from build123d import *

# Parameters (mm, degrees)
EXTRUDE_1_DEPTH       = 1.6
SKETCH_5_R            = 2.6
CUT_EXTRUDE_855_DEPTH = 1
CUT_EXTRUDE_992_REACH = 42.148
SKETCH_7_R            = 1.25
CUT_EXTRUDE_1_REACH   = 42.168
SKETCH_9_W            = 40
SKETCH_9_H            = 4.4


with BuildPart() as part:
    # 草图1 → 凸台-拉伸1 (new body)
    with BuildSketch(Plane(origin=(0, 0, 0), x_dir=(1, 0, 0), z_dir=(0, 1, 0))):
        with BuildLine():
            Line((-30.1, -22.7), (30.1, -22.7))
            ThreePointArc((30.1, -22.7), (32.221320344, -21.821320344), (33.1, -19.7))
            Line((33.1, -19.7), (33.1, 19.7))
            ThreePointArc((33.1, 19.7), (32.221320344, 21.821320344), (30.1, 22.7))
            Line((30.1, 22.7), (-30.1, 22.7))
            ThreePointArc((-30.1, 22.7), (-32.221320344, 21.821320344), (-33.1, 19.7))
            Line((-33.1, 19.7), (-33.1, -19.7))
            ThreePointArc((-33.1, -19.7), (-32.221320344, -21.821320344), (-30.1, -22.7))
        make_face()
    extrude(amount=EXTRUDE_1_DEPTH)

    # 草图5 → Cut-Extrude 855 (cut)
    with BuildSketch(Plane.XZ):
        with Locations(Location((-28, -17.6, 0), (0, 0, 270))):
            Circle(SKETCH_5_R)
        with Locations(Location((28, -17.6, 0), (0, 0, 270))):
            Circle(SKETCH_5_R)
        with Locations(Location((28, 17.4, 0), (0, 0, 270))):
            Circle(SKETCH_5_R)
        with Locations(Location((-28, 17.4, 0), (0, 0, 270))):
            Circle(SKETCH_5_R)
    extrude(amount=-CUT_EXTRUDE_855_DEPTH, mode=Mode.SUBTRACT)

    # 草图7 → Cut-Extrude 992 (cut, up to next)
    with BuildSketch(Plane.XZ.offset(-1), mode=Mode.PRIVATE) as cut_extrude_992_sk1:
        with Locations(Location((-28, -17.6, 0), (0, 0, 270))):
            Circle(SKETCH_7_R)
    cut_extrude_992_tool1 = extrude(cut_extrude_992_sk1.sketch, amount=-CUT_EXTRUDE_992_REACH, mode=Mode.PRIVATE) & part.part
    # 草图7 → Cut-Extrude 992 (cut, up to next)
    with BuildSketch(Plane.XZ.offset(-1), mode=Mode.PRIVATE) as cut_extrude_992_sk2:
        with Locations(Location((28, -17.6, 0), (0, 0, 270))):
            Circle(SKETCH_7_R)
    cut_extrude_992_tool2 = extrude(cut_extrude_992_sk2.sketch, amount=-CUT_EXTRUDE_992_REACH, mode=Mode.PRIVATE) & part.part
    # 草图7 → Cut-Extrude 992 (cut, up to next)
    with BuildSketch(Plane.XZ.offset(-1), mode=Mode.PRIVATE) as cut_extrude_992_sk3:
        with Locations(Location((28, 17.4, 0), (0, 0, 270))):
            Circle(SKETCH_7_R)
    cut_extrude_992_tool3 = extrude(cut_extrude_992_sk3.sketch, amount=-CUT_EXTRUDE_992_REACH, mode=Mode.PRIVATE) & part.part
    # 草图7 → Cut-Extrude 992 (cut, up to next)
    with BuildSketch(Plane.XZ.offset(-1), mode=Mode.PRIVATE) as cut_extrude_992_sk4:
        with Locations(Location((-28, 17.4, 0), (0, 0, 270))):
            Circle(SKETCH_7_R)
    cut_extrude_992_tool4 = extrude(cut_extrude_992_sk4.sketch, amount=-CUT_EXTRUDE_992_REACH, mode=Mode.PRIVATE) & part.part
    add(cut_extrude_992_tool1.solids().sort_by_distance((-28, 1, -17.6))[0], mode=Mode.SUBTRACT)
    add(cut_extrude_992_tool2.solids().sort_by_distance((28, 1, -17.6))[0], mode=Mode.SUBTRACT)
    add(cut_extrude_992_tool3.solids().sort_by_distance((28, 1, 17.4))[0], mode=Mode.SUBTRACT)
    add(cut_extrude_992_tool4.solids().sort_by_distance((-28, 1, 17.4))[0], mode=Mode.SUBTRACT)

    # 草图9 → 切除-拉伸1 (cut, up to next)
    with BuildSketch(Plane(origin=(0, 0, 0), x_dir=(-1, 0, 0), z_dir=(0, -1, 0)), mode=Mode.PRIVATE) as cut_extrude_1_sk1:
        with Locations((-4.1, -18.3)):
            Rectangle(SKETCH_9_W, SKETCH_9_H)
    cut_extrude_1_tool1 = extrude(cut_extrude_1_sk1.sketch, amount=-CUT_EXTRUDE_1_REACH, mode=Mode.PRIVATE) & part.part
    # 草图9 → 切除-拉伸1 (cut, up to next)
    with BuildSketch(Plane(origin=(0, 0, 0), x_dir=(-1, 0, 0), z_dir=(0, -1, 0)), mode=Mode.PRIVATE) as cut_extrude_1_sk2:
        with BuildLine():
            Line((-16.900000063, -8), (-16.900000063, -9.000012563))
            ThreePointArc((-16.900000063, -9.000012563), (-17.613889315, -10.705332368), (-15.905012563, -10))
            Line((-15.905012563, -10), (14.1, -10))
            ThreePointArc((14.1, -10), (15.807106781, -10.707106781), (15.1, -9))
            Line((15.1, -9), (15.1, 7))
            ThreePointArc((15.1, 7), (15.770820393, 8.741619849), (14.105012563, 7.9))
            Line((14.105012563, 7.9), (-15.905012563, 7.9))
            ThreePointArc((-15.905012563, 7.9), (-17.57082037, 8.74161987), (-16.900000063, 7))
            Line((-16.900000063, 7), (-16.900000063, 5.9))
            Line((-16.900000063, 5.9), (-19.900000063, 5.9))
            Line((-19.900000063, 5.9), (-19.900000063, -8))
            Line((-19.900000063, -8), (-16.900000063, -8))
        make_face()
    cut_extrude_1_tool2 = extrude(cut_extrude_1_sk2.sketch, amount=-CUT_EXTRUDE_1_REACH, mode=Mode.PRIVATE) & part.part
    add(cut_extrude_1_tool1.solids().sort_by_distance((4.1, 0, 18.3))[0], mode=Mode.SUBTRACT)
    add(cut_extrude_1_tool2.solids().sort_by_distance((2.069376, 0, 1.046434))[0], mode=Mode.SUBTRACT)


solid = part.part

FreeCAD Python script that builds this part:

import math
import FreeCAD as App
import Part
import Sketcher

doc = App.newDocument("Part")
body = doc.addObject("PartDesign::Body", "Body")

sketch1 = body.newObject("Sketcher::SketchObject", "Sketch")
sketch1.AttachmentSupport = (doc.getObject("XZ_Plane"), [""])
sketch1.MapMode = "FlatFace"
sketch1.addGeometry([
    Part.LineSegment(App.Vector(-30.1, 22.7, 0), App.Vector(30.1, 22.7, 0)),
    Part.ArcOfCircle(Part.Circle(App.Vector(30.1, 19.7, 0), App.Vector(0, 0, 1), 3), math.radians(0), math.radians(90)),
    Part.LineSegment(App.Vector(33.1, 19.7, 0), App.Vector(33.1, -19.7, 0)),
    Part.ArcOfCircle(Part.Circle(App.Vector(30.1, -19.7, 0), App.Vector(0, 0, 1), 3), math.radians(-90), math.radians(0)),
    Part.LineSegment(App.Vector(30.1, -22.7, 0), App.Vector(-30.1, -22.7, 0)),
    Part.ArcOfCircle(Part.Circle(App.Vector(-30.1, -19.7, 0), App.Vector(0, 0, 1), 3), math.radians(180), math.radians(270)),
    Part.LineSegment(App.Vector(-33.1, -19.7, 0), App.Vector(-33.1, 19.7, 0)),
    Part.ArcOfCircle(Part.Circle(App.Vector(-30.1, 19.7, 0), App.Vector(0, 0, 1), 3), math.radians(90), math.radians(180)),
], False)
sketch1.addConstraint([
    Sketcher.Constraint("Tangent", 0, 2, 1, 2),
    Sketcher.Constraint("Tangent", 1, 1, 2, 1),
    Sketcher.Constraint("Tangent", 2, 2, 3, 2),
    Sketcher.Constraint("Tangent", 3, 1, 4, 1),
    Sketcher.Constraint("Tangent", 4, 2, 5, 2),
    Sketcher.Constraint("Tangent", 5, 1, 6, 1),
    Sketcher.Constraint("Tangent", 6, 2, 7, 2),
    Sketcher.Constraint("Tangent", 7, 1, 0, 1),
    Sketcher.Constraint("Horizontal", 0),
    Sketcher.Constraint("Vertical", 2),
    Sketcher.Constraint("Horizontal", 4),
    Sketcher.Constraint("Vertical", 6),
    Sketcher.Constraint("Equal", 1, 3),
    Sketcher.Constraint("Equal", 3, 5),
    Sketcher.Constraint("Equal", 5, 7),
    Sketcher.Constraint("Symmetric", 1, 3, 5, 3, -1, 1),
    Sketcher.Constraint("Radius", 1, 3.0),
    Sketcher.Constraint("DistanceX", 0, 1, 0, 2, 60.2),
    Sketcher.Constraint("DistanceY", 2, 2, 2, 1, 39.4),
])
pad1 = body.newObject("PartDesign::Pad", "Pad")
pad1.Profile = sketch1
pad1.Length = 1.6
pad1.Reversed = True

sketch2 = body.newObject("Sketcher::SketchObject", "Sketch001")
sketch2.AttachmentSupport = (doc.getObject("XZ_Plane"), [""])
sketch2.MapMode = "FlatFace"
sketch2.addGeometry([
    Part.Circle(App.Vector(-28, -17.6, 0), App.Vector(0, 0, 1), 2.6),
    Part.Circle(App.Vector(28, -17.6, 0), App.Vector(0, 0, 1), 2.6),
    Part.Circle(App.Vector(28, 17.4, 0), App.Vector(0, 0, 1), 2.6),
    Part.Circle(App.Vector(-28, 17.4, 0), App.Vector(0, 0, 1), 2.6),
], False)
sketch2.addConstraint([
    Sketcher.Constraint("Equal", 0, 1),
    Sketcher.Constraint("Equal", 1, 2),
    Sketcher.Constraint("Equal", 2, 3),
    Sketcher.Constraint("Symmetric", 0, 3, 1, 3, -2),
    Sketcher.Constraint("Symmetric", 2, 3, 3, 3, -2),
    Sketcher.Constraint("Vertical", 1, 3, 2, 3),
    Sketcher.Constraint("Diameter", 0, 5.2),
    Sketcher.Constraint("DistanceX", 0, 3, -1, 1, 28.0),
    Sketcher.Constraint("DistanceY", 1, 3, 2, 3, 35.0),
    Sketcher.Constraint("DistanceY", 0, 3, -1, 1, 17.6),
])
pocket1 = body.newObject("PartDesign::Pocket", "Pocket")
pocket1.Profile = sketch2
pocket1.Length = 1

sketch3 = body.newObject("Sketcher::SketchObject", "Sketch002")
sketch3.AttachmentSupport = (doc.getObject("XZ_Plane"), [""])
sketch3.MapMode = "FlatFace"
sketch3.AttachmentOffset = App.Placement(App.Vector(0, 0, -1), App.Rotation())
sketch3.addGeometry(Part.Circle(App.Vector(-28, -17.6, 0), App.Vector(0, 0, 1), 1.2), False)
sketch3.addConstraint([
    Sketcher.Constraint("Diameter", 0, 2.5),
    Sketcher.Constraint("DistanceX", 0, 3, -1, 1, 28.0),
    Sketcher.Constraint("DistanceY", 0, 3, -1, 1, 17.6),
])
pocket2 = body.newObject("PartDesign::Pocket", "Pocket001")
pocket2.Profile = sketch3
pocket2.Type = "UpToFirst"

sketch4 = body.newObject("Sketcher::SketchObject", "Sketch003")
sketch4.AttachmentSupport = (doc.getObject("XZ_Plane"), [""])
sketch4.MapMode = "FlatFace"
sketch4.AttachmentOffset = App.Placement(App.Vector(0, 0, -1), App.Rotation())
sketch4.addGeometry(Part.Circle(App.Vector(28, -17.6, 0), App.Vector(0, 0, 1), 1.2), False)
sketch4.addConstraint([
    Sketcher.Constraint("Diameter", 0, 2.5),
    Sketcher.Constraint("DistanceX", -1, 1, 0, 3, 28.0),
    Sketcher.Constraint("DistanceY", 0, 3, -1, 1, 17.6),
])
pocket3 = body.newObject("PartDesign::Pocket", "Pocket002")
pocket3.Profile = sketch4
pocket3.Type = "UpToFirst"

sketch5 = body.newObject("Sketcher::SketchObject", "Sketch004")
sketch5.AttachmentSupport = (doc.getObject("XZ_Plane"), [""])
sketch5.MapMode = "FlatFace"
sketch5.AttachmentOffset = App.Placement(App.Vector(0, 0, -1), App.Rotation())
sketch5.addGeometry(Part.Circle(App.Vector(28, 17.4, 0), App.Vector(0, 0, 1), 1.2), False)
sketch5.addConstraint([
    Sketcher.Constraint("Diameter", 0, 2.5),
    Sketcher.Constraint("DistanceX", -1, 1, 0, 3, 28.0),
    Sketcher.Constraint("DistanceY", -1, 1, 0, 3, 17.4),
])
pocket4 = body.newObject("PartDesign::Pocket", "Pocket003")
pocket4.Profile = sketch5
pocket4.Type = "UpToFirst"

sketch6 = body.newObject("Sketcher::SketchObject", "Sketch005")
sketch6.AttachmentSupport = (doc.getObject("XZ_Plane"), [""])
sketch6.MapMode = "FlatFace"
sketch6.AttachmentOffset = App.Placement(App.Vector(0, 0, -1), App.Rotation())
sketch6.addGeometry(Part.Circle(App.Vector(-28, 17.4, 0), App.Vector(0, 0, 1), 1.2), False)
sketch6.addConstraint([
    Sketcher.Constraint("Diameter", 0, 2.5),
    Sketcher.Constraint("DistanceX", 0, 3, -1, 1, 28.0),
    Sketcher.Constraint("DistanceY", -1, 1, 0, 3, 17.4),
])
pocket5 = body.newObject("PartDesign::Pocket", "Pocket004")
pocket5.Profile = sketch6
pocket5.Type = "UpToFirst"

sketch7 = body.newObject("Sketcher::SketchObject", "Sketch006")
sketch7.AttachmentSupport = (doc.getObject("XZ_Plane"), [""])
sketch7.MapMode = "FlatFace"
sketch7.addGeometry([
    Part.LineSegment(App.Vector(24.1, 16.1, 0), App.Vector(24.1, 20.5, 0)),
    Part.LineSegment(App.Vector(24.1, 20.5, 0), App.Vector(-15.9, 20.5, 0)),
    Part.LineSegment(App.Vector(-15.9, 20.5, 0), App.Vector(-15.9, 16.1, 0)),
    Part.LineSegment(App.Vector(-15.9, 16.1, 0), App.Vector(24.1, 16.1, 0)),
], False)
sketch7.addConstraint([
    Sketcher.Constraint("Coincident", 0, 2, 1, 1),
    Sketcher.Constraint("Coincident", 1, 2, 2, 1),
    Sketcher.Constraint("Coincident", 2, 2, 3, 1),
    Sketcher.Constraint("Coincident", 3, 2, 0, 1),
    Sketcher.Constraint("Vertical", 0),
    Sketcher.Constraint("Horizontal", 1),
    Sketcher.Constraint("Vertical", 2),
    Sketcher.Constraint("Horizontal", 3),
    Sketcher.Constraint("DistanceX", 1, 2, 1, 1, 40.0),
    Sketcher.Constraint("DistanceY", 0, 1, 0, 2, 4.4),
    Sketcher.Constraint("DistanceX", -1, 1, 0, 2, 24.1),
    Sketcher.Constraint("DistanceY", -1, 1, 0, 2, 20.5),
])
pocket6 = body.newObject("PartDesign::Pocket", "Pocket005")
pocket6.Profile = sketch7
pocket6.Type = "UpToFirst"

sketch8 = body.newObject("Sketcher::SketchObject", "Sketch007")
sketch8.AttachmentSupport = (doc.getObject("XZ_Plane"), [""])
sketch8.MapMode = "FlatFace"
sketch8.addGeometry([
    Part.LineSegment(App.Vector(16.9, 8, 0), App.Vector(16.9, 9, 0)),
    Part.ArcOfCircle(Part.Circle(App.Vector(16.9, 10, 0), App.Vector(0, 0, 1), 1), math.radians(-90), math.radians(180)),
    Part.LineSegment(App.Vector(15.9, 10, 0), App.Vector(-14.1, 10, 0)),
    Part.ArcOfCircle(Part.Circle(App.Vector(-15.1, 10, 0), App.Vector(0, 0, 1), 1), math.radians(0), math.radians(270)),
    Part.LineSegment(App.Vector(-15.1, 9, 0), App.Vector(-15.1, -7, 0)),
    Part.ArcOfCircle(Part.Circle(App.Vector(-15.1, -8, 0), App.Vector(0, 0, 1), 1), math.radians(90), math.radians(366)),
    Part.LineSegment(App.Vector(-14.1, -7.9, 0), App.Vector(15.9, -7.9, 0)),
    Part.ArcOfCircle(Part.Circle(App.Vector(16.9, -8, 0), App.Vector(0, 0, 1), 1), math.radians(174), math.radians(450)),
    Part.LineSegment(App.Vector(16.9, -7, 0), App.Vector(16.9, -5.9, 0)),
    Part.LineSegment(App.Vector(16.9, -5.9, 0), App.Vector(19.9, -5.9, 0)),
    Part.LineSegment(App.Vector(19.9, -5.9, 0), App.Vector(19.9, 8, 0)),
    Part.LineSegment(App.Vector(19.9, 8, 0), App.Vector(16.9, 8, 0)),
], False)
sketch8.addConstraint([
    Sketcher.Constraint("Coincident", 0, 2, 1, 1),
    Sketcher.Constraint("Coincident", 1, 2, 2, 1),
    Sketcher.Constraint("Coincident", 2, 2, 3, 1),
    Sketcher.Constraint("Coincident", 3, 2, 4, 1),
    Sketcher.Constraint("Coincident", 4, 2, 5, 1),
    Sketcher.Constraint("Coincident", 5, 2, 6, 1),
    Sketcher.Constraint("Coincident", 6, 2, 7, 1),
    Sketcher.Constraint("Coincident", 7, 2, 8, 1),
    Sketcher.Constraint("Coincident", 8, 2, 9, 1),
    Sketcher.Constraint("Coincident", 9, 2, 10, 1),
    Sketcher.Constraint("Coincident", 10, 2, 11, 1),
    Sketcher.Constraint("Coincident", 11, 2, 0, 1),
    Sketcher.Constraint("Vertical", 0),
    Sketcher.Constraint("Horizontal", 2),
    Sketcher.Constraint("Vertical", 4),
    Sketcher.Constraint("Horizontal", 6),
    Sketcher.Constraint("Vertical", 8),
    Sketcher.Constraint("Horizontal", 9),
    Sketcher.Constraint("Vertical", 10),
    Sketcher.Constraint("Horizontal", 11),
    Sketcher.Constraint("Equal", 1, 3),
    Sketcher.Constraint("Equal", 3, 5),
    Sketcher.Constraint("Equal", 5, 7),
    Sketcher.Constraint("Horizontal", 1, 3, 3, 3),
    Sketcher.Constraint("Horizontal", 5, 3, 7, 3),
    Sketcher.Constraint("Horizontal", 3, 3, 1, 2),
    Sketcher.Constraint("Vertical", 3, 3, 5, 3),
    Sketcher.Constraint("Vertical", 7, 3, 0, 2),
    Sketcher.Constraint("Vertical", 5, 3, 3, 2),
    Sketcher.Constraint("Vertical", 1, 2, 6, 2),
    Sketcher.Constraint("Vertical", 0, 2, 7, 2),
    Sketcher.Constraint("Radius", 1, 1.0),
    Sketcher.Constraint("DistanceX", 9, 1, 9, 2, 3.0),
    Sketcher.Constraint("DistanceY", 4, 2, 4, 1, 16.0),
    Sketcher.Constraint("DistanceY", 8, 1, 8, 2, 1.1),
    Sketcher.Constraint("DistanceY", 10, 1, 10, 2, 13.9),
    Sketcher.Constraint("DistanceY", -1, 1, 1, 3, 10.0),
    Sketcher.Constraint("DistanceX", 5, 3, 7, 3, 32.0),
    Sketcher.Constraint("DistanceY", 6, 2, 8, 2, 2.0),
    Sketcher.Constraint("DistanceX", 3, 3, -1, 1, 15.1),
])
pocket7 = body.newObject("PartDesign::Pocket", "Pocket006")
pocket7.Profile = sketch8
pocket7.Type = "UpToFirst"

doc.recompute()
